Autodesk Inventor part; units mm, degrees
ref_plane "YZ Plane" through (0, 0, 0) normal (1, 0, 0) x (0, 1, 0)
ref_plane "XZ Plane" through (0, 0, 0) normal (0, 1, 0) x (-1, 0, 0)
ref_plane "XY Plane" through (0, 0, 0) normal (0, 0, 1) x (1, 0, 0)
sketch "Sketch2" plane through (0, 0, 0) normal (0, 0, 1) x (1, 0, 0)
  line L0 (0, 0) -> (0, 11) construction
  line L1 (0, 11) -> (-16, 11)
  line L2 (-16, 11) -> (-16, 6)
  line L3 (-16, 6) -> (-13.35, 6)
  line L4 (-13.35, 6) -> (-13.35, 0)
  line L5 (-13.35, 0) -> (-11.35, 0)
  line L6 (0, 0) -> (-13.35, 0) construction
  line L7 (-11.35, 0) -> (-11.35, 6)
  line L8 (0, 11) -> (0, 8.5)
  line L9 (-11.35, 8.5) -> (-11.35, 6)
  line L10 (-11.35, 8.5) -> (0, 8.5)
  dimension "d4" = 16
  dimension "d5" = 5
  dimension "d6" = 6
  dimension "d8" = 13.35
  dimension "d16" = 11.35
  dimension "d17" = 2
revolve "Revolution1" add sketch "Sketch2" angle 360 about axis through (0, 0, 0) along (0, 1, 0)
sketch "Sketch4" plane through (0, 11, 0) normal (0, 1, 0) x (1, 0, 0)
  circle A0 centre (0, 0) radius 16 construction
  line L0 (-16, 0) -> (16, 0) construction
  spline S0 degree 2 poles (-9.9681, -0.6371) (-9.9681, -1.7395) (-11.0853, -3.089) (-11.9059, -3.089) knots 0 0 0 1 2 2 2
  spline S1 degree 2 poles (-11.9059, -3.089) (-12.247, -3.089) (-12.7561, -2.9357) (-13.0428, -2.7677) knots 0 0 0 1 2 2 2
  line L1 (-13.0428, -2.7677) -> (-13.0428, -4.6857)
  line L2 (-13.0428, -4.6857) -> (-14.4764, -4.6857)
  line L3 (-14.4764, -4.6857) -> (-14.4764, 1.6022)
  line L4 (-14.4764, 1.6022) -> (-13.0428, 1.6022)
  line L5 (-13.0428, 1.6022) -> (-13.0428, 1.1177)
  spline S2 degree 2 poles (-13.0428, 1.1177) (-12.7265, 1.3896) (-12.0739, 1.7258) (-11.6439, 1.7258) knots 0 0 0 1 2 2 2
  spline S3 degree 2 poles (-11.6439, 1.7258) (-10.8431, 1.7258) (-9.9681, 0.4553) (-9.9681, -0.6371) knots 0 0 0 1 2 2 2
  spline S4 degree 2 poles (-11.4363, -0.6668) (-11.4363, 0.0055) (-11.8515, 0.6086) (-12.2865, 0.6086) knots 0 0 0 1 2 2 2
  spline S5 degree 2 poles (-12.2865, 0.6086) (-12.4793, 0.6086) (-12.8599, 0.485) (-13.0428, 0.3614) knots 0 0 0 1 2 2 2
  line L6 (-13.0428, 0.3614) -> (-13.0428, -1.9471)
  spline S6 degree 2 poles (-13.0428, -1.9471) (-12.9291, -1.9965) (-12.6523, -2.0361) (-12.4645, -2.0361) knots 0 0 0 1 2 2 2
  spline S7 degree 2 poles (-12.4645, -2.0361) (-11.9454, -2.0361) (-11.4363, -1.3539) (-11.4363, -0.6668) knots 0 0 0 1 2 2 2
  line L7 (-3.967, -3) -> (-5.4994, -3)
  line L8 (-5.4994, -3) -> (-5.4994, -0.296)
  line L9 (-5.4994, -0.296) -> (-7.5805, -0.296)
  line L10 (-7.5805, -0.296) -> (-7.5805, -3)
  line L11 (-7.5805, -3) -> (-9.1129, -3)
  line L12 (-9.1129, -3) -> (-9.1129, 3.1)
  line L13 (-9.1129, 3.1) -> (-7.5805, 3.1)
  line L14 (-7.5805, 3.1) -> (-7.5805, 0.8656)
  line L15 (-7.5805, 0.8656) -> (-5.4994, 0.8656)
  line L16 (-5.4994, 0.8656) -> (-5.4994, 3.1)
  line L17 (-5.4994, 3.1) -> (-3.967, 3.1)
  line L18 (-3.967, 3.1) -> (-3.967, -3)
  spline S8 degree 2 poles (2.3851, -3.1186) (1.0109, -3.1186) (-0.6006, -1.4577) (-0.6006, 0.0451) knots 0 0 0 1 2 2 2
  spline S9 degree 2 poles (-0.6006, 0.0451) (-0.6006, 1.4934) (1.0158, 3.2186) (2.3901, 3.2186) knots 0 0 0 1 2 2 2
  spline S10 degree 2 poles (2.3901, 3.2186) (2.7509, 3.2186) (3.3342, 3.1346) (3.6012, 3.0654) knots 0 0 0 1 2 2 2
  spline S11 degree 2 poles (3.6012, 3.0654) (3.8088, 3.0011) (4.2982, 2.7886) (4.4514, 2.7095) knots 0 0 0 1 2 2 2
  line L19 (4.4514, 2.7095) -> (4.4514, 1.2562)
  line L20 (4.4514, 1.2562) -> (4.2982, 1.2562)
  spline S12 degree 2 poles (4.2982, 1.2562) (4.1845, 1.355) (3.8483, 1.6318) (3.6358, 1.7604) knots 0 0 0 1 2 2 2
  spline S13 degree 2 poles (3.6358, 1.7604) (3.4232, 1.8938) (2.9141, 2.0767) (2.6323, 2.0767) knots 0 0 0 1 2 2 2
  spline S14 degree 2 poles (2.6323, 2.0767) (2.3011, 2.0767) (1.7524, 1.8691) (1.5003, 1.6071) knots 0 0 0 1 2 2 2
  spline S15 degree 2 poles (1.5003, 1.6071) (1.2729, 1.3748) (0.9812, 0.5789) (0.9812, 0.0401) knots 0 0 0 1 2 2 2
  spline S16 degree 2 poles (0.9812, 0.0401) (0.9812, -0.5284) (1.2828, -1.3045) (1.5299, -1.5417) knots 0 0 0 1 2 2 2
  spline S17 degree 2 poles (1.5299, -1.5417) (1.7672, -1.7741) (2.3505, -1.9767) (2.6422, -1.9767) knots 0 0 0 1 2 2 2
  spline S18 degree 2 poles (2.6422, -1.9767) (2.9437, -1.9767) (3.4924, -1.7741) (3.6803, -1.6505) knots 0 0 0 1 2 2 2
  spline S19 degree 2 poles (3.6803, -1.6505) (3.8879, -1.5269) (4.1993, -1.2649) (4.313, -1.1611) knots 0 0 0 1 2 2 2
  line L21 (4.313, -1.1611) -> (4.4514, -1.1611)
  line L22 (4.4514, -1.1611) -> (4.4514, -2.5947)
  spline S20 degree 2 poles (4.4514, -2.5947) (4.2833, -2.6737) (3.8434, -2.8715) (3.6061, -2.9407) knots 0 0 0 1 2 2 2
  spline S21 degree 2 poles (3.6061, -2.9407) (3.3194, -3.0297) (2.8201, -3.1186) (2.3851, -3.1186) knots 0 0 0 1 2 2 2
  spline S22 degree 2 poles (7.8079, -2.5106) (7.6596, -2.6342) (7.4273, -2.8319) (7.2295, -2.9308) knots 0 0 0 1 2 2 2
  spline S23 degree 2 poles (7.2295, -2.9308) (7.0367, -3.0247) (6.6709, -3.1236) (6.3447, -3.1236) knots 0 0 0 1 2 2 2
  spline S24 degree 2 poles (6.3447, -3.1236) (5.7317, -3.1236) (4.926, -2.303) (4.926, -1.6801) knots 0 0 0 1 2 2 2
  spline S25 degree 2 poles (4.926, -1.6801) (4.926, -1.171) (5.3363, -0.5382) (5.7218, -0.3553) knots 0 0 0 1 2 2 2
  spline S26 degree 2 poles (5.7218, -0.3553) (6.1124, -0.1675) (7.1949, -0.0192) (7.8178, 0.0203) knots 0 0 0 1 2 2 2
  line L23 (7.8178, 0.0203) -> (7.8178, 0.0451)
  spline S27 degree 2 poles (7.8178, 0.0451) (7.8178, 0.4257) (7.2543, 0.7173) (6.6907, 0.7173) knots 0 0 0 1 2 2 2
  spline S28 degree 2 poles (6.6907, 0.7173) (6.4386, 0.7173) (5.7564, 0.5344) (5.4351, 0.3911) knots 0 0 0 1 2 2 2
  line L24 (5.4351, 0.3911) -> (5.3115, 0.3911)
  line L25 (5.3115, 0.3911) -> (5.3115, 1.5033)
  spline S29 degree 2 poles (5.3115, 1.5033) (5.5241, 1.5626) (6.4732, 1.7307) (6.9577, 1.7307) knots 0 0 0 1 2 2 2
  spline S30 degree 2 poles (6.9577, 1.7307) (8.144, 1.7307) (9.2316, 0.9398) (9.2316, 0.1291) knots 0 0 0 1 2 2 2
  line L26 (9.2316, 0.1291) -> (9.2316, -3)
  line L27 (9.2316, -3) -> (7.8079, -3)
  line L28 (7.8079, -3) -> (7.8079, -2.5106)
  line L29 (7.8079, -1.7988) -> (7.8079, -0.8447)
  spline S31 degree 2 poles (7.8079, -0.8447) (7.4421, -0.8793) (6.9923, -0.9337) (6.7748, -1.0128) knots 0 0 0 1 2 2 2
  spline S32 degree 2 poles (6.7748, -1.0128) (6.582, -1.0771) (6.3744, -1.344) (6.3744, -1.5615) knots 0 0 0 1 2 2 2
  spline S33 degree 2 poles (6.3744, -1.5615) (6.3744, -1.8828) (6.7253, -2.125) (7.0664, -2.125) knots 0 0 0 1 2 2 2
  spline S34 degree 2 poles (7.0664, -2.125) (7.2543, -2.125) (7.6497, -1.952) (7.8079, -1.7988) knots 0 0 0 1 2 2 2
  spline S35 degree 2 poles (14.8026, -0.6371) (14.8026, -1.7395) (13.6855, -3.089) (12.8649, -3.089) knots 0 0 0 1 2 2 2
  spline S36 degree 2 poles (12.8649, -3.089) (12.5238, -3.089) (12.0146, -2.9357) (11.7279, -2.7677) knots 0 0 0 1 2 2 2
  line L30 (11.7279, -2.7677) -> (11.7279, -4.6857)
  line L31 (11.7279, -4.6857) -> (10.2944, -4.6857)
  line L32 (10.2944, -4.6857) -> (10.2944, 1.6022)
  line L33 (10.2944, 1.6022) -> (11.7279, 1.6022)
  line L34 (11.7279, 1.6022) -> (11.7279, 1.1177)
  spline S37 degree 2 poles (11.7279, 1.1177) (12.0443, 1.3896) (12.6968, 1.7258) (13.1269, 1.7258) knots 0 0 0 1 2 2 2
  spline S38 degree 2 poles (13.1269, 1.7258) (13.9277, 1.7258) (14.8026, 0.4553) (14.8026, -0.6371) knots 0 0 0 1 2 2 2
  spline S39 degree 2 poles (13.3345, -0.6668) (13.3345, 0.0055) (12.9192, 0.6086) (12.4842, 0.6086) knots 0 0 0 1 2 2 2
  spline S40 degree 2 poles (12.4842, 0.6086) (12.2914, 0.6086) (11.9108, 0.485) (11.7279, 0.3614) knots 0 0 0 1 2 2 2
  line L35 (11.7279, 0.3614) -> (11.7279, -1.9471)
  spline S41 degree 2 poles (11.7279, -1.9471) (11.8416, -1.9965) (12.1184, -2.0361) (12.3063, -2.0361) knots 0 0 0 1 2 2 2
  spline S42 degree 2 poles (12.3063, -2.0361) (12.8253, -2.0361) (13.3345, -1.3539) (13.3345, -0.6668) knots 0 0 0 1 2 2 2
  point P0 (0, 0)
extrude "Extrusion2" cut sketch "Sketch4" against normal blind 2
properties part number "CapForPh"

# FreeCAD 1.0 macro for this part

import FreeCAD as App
import Part
import Sketcher

V = App.Vector
Q = App.Units.Quantity


def add_polygon(sketch, points):
    """Adds a closed chain of lines whose ends are joined by coincident constraints."""
    first, n = sketch.GeometryCount, len(points)
    for a, b in zip(points, points[1:] + points[:1]):
        sketch.addGeometry(Part.LineSegment(App.Vector(*a, 0), App.Vector(*b, 0)), False)
    for i in range(n):
        sketch.addConstraint(Sketcher.Constraint("Coincident", first + i, 2, first + (i + 1) % n, 1))

doc = App.newDocument("Part")
params = doc.addObject("Spreadsheet::Sheet", "Params")
for row, (alias, value) in enumerate([
    ("sketch1_width", "16 mm"),
    ("sketch1_width2", "2 mm"),
    ("sketch1_height", "5 mm"),
    ("sketch1_height2", "6 mm"),
    ("sketch1_width3", "11.35 mm"),
    ("revolution_angle", "360 deg"),
    ("sketch2_height", "6.1 mm"),
    ("sketch2_height2", "6.1 mm"),
    ("pocket1_length", "2 mm"),
], start=1):
    params.set(f"A{row}", alias)
    params.set(f"B{row}", "=" + value)
    params.setAlias(f"B{row}", alias)

body = doc.addObject("PartDesign::Body", "Body")

# Sketch on XY plane
sketch1 = doc.addObject("Sketcher::SketchObject", "Sketch")
body.addObject(sketch1)
sketch1.AttachmentSupport = (doc.XY_Plane, [""])
sketch1.MapMode = "FlatFace"
add_polygon(sketch1, [(0, 8.5), (0, 11), (-16, 11), (-16, 6), (-13.3, 6), (-13.3, 0), (-11.3, 0), (-11.3, 8.5)])  # lines 0-7
sketch1.addConstraint([
    Sketcher.Constraint("Vertical", 0),
    Sketcher.Constraint("Horizontal", 1),
    Sketcher.Constraint("Vertical", 2),
    Sketcher.Constraint("Horizontal", 3),
    Sketcher.Constraint("Vertical", 4),
    Sketcher.Constraint("Horizontal", 5),
    Sketcher.Constraint("Vertical", 6),
    Sketcher.Constraint("Horizontal", 7),
    Sketcher.Constraint("PointOnObject", 0, 2, -2),
    Sketcher.Constraint("PointOnObject", 4, 2, -1),
    Sketcher.Constraint("DistanceX", 1, 2, 1, 1, Q("16 mm")),
    Sketcher.Constraint("DistanceX", 5, 1, 5, 2, Q("2 mm")),
    Sketcher.Constraint("DistanceY", 2, 2, 2, 1, Q("5 mm")),
    Sketcher.Constraint("DistanceY", 4, 2, 4, 1, Q("6 mm")),
    Sketcher.Constraint("DistanceX", 7, 1, 7, 2, Q("11.35 mm")),
    Sketcher.Constraint("DistanceY", 0, 1, 0, 2, Q("2.5 mm")),
])
sketch1.setExpression("Constraints[18]", "Params.sketch1_width")
sketch1.setExpression("Constraints[19]", "Params.sketch1_width2")
sketch1.setExpression("Constraints[20]", "Params.sketch1_height")
sketch1.setExpression("Constraints[21]", "Params.sketch1_height2")
sketch1.setExpression("Constraints[22]", "Params.sketch1_width3")
revolution = doc.addObject("PartDesign::Revolution", "Revolution")
body.addObject(revolution)
revolution.Profile = sketch1
revolution.ReferenceAxis = (sketch1, ["V_Axis"])
revolution.setExpression("Angle", "Params.revolution_angle")

# Sketch on XZ plane
sketch2 = doc.addObject("Sketcher::SketchObject", "Sketch001")
body.addObject(sketch2)
sketch2.AttachmentSupport = (doc.XZ_Plane, [""])
sketch2.MapMode = "FlatFace"
sketch2.AttachmentOffset = App.Placement(V(0, 0, -11), App.Rotation())
sketch2.addGeometry(Part.BSplineCurve([V(-9.9681, 0.6371, 0), V(-9.9681, 1.7395, 0), V(-11.0853, 3.089, 0), V(-11.9059, 3.089, 0)], [3, 1, 3], [0, 1, 2], False, 2, [1, 1, 1, 1], False), False)  # 0
sketch2.addGeometry(Part.BSplineCurve([V(-11.6439, -1.7258, 0), V(-10.8431, -1.7258, 0), V(-9.9681, -0.4553, 0), V(-9.9681, 0.6371, 0)], [3, 1, 3], [0, 1, 2], False, 2, [1, 1, 1, 1], False), False)  # 1
sketch2.addGeometry(Part.BSplineCurve([V(-13.0428, -1.1177, 0), V(-12.7265, -1.3896, 0), V(-12.0739, -1.7258, 0), V(-11.6439, -1.7258, 0)], [3, 1, 3], [0, 1, 2], False, 2, [1, 1, 1, 1], False), False)  # 2
sketch2.addGeometry(Part.LineSegment(V(-13.0428, -1.1177, 0), V(-13.0428, -1.6022, 0)), False)  # 3
sketch2.addGeometry(Part.LineSegment(V(-13.0428, -1.6022, 0), V(-14.4764, -1.6022, 0)), False)  # 4
sketch2.addGeometry(Part.LineSegment(V(-14.4764, -1.6022, 0), V(-14.4764, 4.6857, 0)), False)  # 5
sketch2.addGeometry(Part.LineSegment(V(-14.4764, 4.6857, 0), V(-13.0428, 4.6857, 0)), False)  # 6
sketch2.addGeometry(Part.LineSegment(V(-13.0428, 4.6857, 0), V(-13.0428, 2.7677, 0)), False)  # 7
sketch2.addGeometry(Part.BSplineCurve([V(-11.9059, 3.089, 0), V(-12.247, 3.089, 0), V(-12.7561, 2.9357, 0), V(-13.0428, 2.7677, 0)], [3, 1, 3], [0, 1, 2], False, 2, [1, 1, 1, 1], False), False)  # 8
sketch2.addGeometry(Part.BSplineCurve([V(-11.4363, 0.6668, 0), V(-11.4363, -0.0055, 0), V(-11.8515, -0.6086, 0), V(-12.2865, -0.6086, 0)], [3, 1, 3], [0, 1, 2], False, 2, [1, 1, 1, 1], False), False)  # 9
sketch2.addGeometry(Part.BSplineCurve([V(-12.4645, 2.0361, 0), V(-11.9454, 2.0361, 0), V(-11.4363, 1.3539, 0), V(-11.4363, 0.6668, 0)], [3, 1, 3], [0, 1, 2], False, 2, [1, 1, 1, 1], False), False)  # 10
sketch2.addGeometry(Part.BSplineCurve([V(-13.0428, 1.9471, 0), V(-12.9291, 1.9965, 0), V(-12.6523, 2.0361, 0), V(-12.4645, 2.0361, 0)], [3, 1, 3], [0, 1, 2], False, 2, [1, 1, 1, 1], False), False)  # 11
sketch2.addGeometry(Part.LineSegment(V(-13.0428, 1.9471, 0), V(-13.0428, -0.3614, 0)), False)  # 12
sketch2.addGeometry(Part.BSplineCurve([V(-12.2865, -0.6086, 0), V(-12.4793, -0.6086, 0), V(-12.8599, -0.485, 0), V(-13.0428, -0.3614, 0)], [3, 1, 3], [0, 1, 2], False, 2, [1, 1, 1, 1], False), False)  # 13
add_polygon(sketch2, [(-5.4994, 3), (-3.967, 3), (-3.967, -3.1), (-5.4994, -3.1), (-5.4994, -0.8656), (-7.5805, -0.8656), (-7.5805, -3.1), (-9.1129, -3.1), (-9.1129, 3), (-7.5805, 3), (-7.5805, 0.296), (-5.4994, 0.296)])  # lines 14-25
sketch2.addGeometry(Part.BSplineCurve([V(2.3851, 3.1186, 0), V(1.0109, 3.1186, 0), V(-0.6006, 1.4577, 0), V(-0.6006, -0.0451, 0)], [3, 1, 3], [0, 1, 2], False, 2, [1, 1, 1, 1], False), False)  # 26
sketch2.addGeometry(Part.BSplineCurve([V(3.6061, 2.9407, 0), V(3.3194, 3.0297, 0), V(2.8201, 3.1186, 0), V(2.3851, 3.1186, 0)], [3, 1, 3], [0, 1, 2], False, 2, [1, 1, 1, 1], False), False)  # 27
sketch2.addGeometry(Part.BSplineCurve([V(4.4514, 2.5947, 0), V(4.2833, 2.6737, 0), V(3.8434, 2.8715, 0), V(3.6061, 2.9407, 0)], [3, 1, 3], [0, 1, 2], False, 2, [1, 1, 1, 1], False), False)  # 28
sketch2.addGeometry(Part.LineSegment(V(4.4514, 2.5947, 0), V(4.4514, 1.1611, 0)), False)  # 29
sketch2.addGeometry(Part.LineSegment(V(4.4514, 1.1611, 0), V(4.313, 1.1611, 0)), False)  # 30
sketch2.addGeometry(Part.BSplineCurve([V(3.6803, 1.6505, 0), V(3.8879, 1.5269, 0), V(4.1993, 1.2649, 0), V(4.313, 1.1611, 0)], [3, 1, 3], [0, 1, 2], False, 2, [1, 1, 1, 1], False), False)  # 31
sketch2.addGeometry(Part.BSplineCurve([V(2.6422, 1.9767, 0), V(2.9437, 1.9767, 0), V(3.4924, 1.7741, 0), V(3.6803, 1.6505, 0)], [3, 1, 3], [0, 1, 2], False, 2, [1, 1, 1, 1], False), False)  # 32
sketch2.addGeometry(Part.BSplineCurve([V(1.5299, 1.5417, 0), V(1.7672, 1.7741, 0), V(2.3505, 1.9767, 0), V(2.6422, 1.9767, 0)], [3, 1, 3], [0, 1, 2], False, 2, [1, 1, 1, 1], False), False)  # 33
sketch2.addGeometry(Part.BSplineCurve([V(0.9812, -0.0401, 0), V(0.9812, 0.5284, 0), V(1.2828, 1.3045, 0), V(1.5299, 1.5417, 0)], [3, 1, 3], [0, 1, 2], False, 2, [1, 1, 1, 1], False), False)  # 34
sketch2.addGeometry(Part.BSplineCurve([V(1.5003, -1.6071, 0), V(1.2729, -1.3748, 0), V(0.9812, -0.5789, 0), V(0.9812, -0.0401, 0)], [3, 1, 3], [0, 1, 2], False, 2, [1, 1, 1, 1], False), False)  # 35
sketch2.addGeometry(Part.BSplineCurve([V(2.6323, -2.0767, 0), V(2.3011, -2.0767, 0), V(1.7524, -1.8691, 0), V(1.5003, -1.6071, 0)], [3, 1, 3], [0, 1, 2], False, 2, [1, 1, 1, 1], False), False)  # 36
sketch2.addGeometry(Part.BSplineCurve([V(3.6358, -1.7604, 0), V(3.4232, -1.8938, 0), V(2.9141, -2.0767, 0), V(2.6323, -2.0767, 0)], [3, 1, 3], [0, 1, 2], False, 2, [1, 1, 1, 1], False), False)  # 37
sketch2.addGeometry(Part.BSplineCurve([V(4.2982, -1.2562, 0), V(4.1845, -1.355, 0), V(3.8483, -1.6318, 0), V(3.6358, -1.7604, 0)], [3, 1, 3], [0, 1, 2], False, 2, [1, 1, 1, 1], False), False)  # 38
sketch2.addGeometry(Part.LineSegment(V(4.2982, -1.2562, 0), V(4.4514, -1.2562, 0)), False)  # 39
sketch2.addGeometry(Part.LineSegment(V(4.4514, -1.2562, 0), V(4.4514, -2.7095, 0)), False)  # 40
sketch2.addGeometry(Part.BSplineCurve([V(3.6012, -3.0654, 0), V(3.8088, -3.0011, 0), V(4.2982, -2.7886, 0), V(4.4514, -2.7095, 0)], [3, 1, 3], [0, 1, 2], False, 2, [1, 1, 1, 1], False), False)  # 41
sketch2.addGeometry(Part.BSplineCurve([V(2.3901, -3.2186, 0), V(2.7509, -3.2186, 0), V(3.3342, -3.1346, 0), V(3.6012, -3.0654, 0)], [3, 1, 3], [0, 1, 2], False, 2, [1, 1, 1, 1], False), False)  # 42
sketch2.addGeometry(Part.BSplineCurve([V(-0.6006, -0.0451, 0), V(-0.6006, -1.4934, 0), V(1.0158, -3.2186, 0), V(2.3901, -3.2186, 0)], [3, 1, 3], [0, 1, 2], False, 2, [1, 1, 1, 1], False), False)  # 43
sketch2.addGeometry(Part.BSplineCurve([V(7.8079, 2.5106, 0), V(7.6596, 2.6342, 0), V(7.4273, 2.8319, 0), V(7.2295, 2.9308, 0)], [3, 1, 3], [0, 1, 2], False, 2, [1, 1, 1, 1], False), False)  # 44
sketch2.addGeometry(Part.LineSegment(V(7.8079, 2.5106, 0), V(7.8079, 3, 0)), False)  # 45
sketch2.addGeometry(Part.LineSegment(V(7.8079, 3, 0), V(9.2316, 3, 0)), False)  # 46
sketch2.addGeometry(Part.LineSegment(V(9.2316, 3, 0), V(9.2316, -0.1291, 0)), False)  # 47
sketch2.addGeometry(Part.BSplineCurve([V(6.9577, -1.7307, 0), V(8.144, -1.7307, 0), V(9.2316, -0.9398, 0), V(9.2316, -0.1291, 0)], [3, 1, 3], [0, 1, 2], False, 2, [1, 1, 1, 1], False), False)  # 48
sketch2.addGeometry(Part.BSplineCurve([V(5.3115, -1.5033, 0), V(5.5241, -1.5626, 0), V(6.4732, -1.7307, 0), V(6.9577, -1.7307, 0)], [3, 1, 3], [0, 1, 2], False, 2, [1, 1, 1, 1], False), False)  # 49
sketch2.addGeometry(Part.LineSegment(V(5.3115, -1.5033, 0), V(5.3115, -0.3911, 0)), False)  # 50
sketch2.addGeometry(Part.LineSegment(V(5.3115, -0.3911, 0), V(5.4351, -0.3911, 0)), False)  # 51
sketch2.addGeometry(Part.BSplineCurve([V(6.6907, -0.7173, 0), V(6.4386, -0.7173, 0), V(5.7564, -0.5344, 0), V(5.4351, -0.3911, 0)], [3, 1, 3], [0, 1, 2], False, 2, [1, 1, 1, 1], False), False)  # 52
sketch2.addGeometry(Part.BSplineCurve([V(7.8178, -0.0451, 0), V(7.8178, -0.4257, 0), V(7.2543, -0.7173, 0), V(6.6907, -0.7173, 0)], [3, 1, 3], [0, 1, 2], False, 2, [1, 1, 1, 1], False), False)  # 53
sketch2.addGeometry(Part.LineSegment(V(7.8178, -0.0451, 0), V(7.8178, -0.0203, 0)), False)  # 54
sketch2.addGeometry(Part.BSplineCurve([V(5.7218, 0.3553, 0), V(6.1124, 0.1675, 0), V(7.1949, 0.0192, 0), V(7.8178, -0.0203, 0)], [3, 1, 3], [0, 1, 2], False, 2, [1, 1, 1, 1], False), False)  # 55
sketch2.addGeometry(Part.BSplineCurve([V(4.926, 1.6801, 0), V(4.926, 1.171, 0), V(5.3363, 0.5382, 0), V(5.7218, 0.3553, 0)], [3, 1, 3], [0, 1, 2], False, 2, [1, 1, 1, 1], False), False)  # 56
sketch2.addGeometry(Part.BSplineCurve([V(6.3447, 3.1236, 0), V(5.7317, 3.1236, 0), V(4.926, 2.303, 0), V(4.926, 1.6801, 0)], [3, 1, 3], [0, 1, 2], False, 2, [1, 1, 1, 1], False), False)  # 57
sketch2.addGeometry(Part.BSplineCurve([V(7.2295, 2.9308, 0), V(7.0367, 3.0247, 0), V(6.6709, 3.1236, 0), V(6.3447, 3.1236, 0)], [3, 1, 3], [0, 1, 2], False, 2, [1, 1, 1, 1], False), False)  # 58
sketch2.addGeometry(Part.LineSegment(V(7.8079, 0.8447, 0), V(7.8079, 1.7988, 0)), False)  # 59
sketch2.addGeometry(Part.BSplineCurve([V(7.0664, 2.125, 0), V(7.2543, 2.125, 0), V(7.6497, 1.952, 0), V(7.8079, 1.7988, 0)], [3, 1, 3], [0, 1, 2], False, 2, [1, 1, 1, 1], False), False)  # 60
sketch2.addGeometry(Part.BSplineCurve([V(6.3744, 1.5615, 0), V(6.3744, 1.8828, 0), V(6.7253, 2.125, 0), V(7.0664, 2.125, 0)], [3, 1, 3], [0, 1, 2], False, 2, [1, 1, 1, 1], False), False)  # 61
sketch2.addGeometry(Part.BSplineCurve([V(6.7748, 1.0128, 0), V(6.582, 1.0771, 0), V(6.3744, 1.344, 0), V(6.3744, 1.5615, 0)], [3, 1, 3], [0, 1, 2], False, 2, [1, 1, 1, 1], False), False)  # 62
sketch2.addGeometry(Part.BSplineCurve([V(7.8079, 0.8447, 0), V(7.4421, 0.8793, 0), V(6.9923, 0.9337, 0), V(6.7748, 1.0128, 0)], [3, 1, 3], [0, 1, 2], False, 2, [1, 1, 1, 1], False), False)  # 63
sketch2.addGeometry(Part.BSplineCurve([V(14.8026, 0.6371, 0), V(14.8026, 1.7395, 0), V(13.6855, 3.089, 0), V(12.8649, 3.089, 0)], [3, 1, 3], [0, 1, 2], False, 2, [1, 1, 1, 1], False), False)  # 64
sketch2.addGeometry(Part.BSplineCurve([V(13.1269, -1.7258, 0), V(13.9277, -1.7258, 0), V(14.8026, -0.4553, 0), V(14.8026, 0.6371, 0)], [3, 1, 3], [0, 1, 2], False, 2, [1, 1, 1, 1], False), False)  # 65
sketch2.addGeometry(Part.BSplineCurve([V(11.7279, -1.1177, 0), V(12.0443, -1.3896, 0), V(12.6968, -1.7258, 0), V(13.1269, -1.7258, 0)], [3, 1, 3], [0, 1, 2], False, 2, [1, 1, 1, 1], False), False)  # 66
sketch2.addGeometry(Part.LineSegment(V(11.7279, -1.1177, 0), V(11.7279, -1.6022, 0)), False)  # 67
sketch2.addGeometry(Part.LineSegment(V(11.7279, -1.6022, 0), V(10.2944, -1.6022, 0)), False)  # 68
sketch2.addGeometry(Part.LineSegment(V(10.2944, -1.6022, 0), V(10.2944, 4.6857, 0)), False)  # 69
sketch2.addGeometry(Part.LineSegment(V(10.2944, 4.6857, 0), V(11.7279, 4.6857, 0)), False)  # 70
sketch2.addGeometry(Part.LineSegment(V(11.7279, 4.6857, 0), V(11.7279, 2.7677, 0)), False)  # 71
sketch2.addGeometry(Part.BSplineCurve([V(12.8649, 3.089, 0), V(12.5238, 3.089, 0), V(12.0146, 2.9357, 0), V(11.7279, 2.7677, 0)], [3, 1, 3], [0, 1, 2], False, 2, [1, 1, 1, 1], False), False)  # 72
sketch2.addGeometry(Part.BSplineCurve([V(13.3345, 0.6668, 0), V(13.3345, -0.0055, 0), V(12.9192, -0.6086, 0), V(12.4842, -0.6086, 0)], [3, 1, 3], [0, 1, 2], False, 2, [1, 1, 1, 1], False), False)  # 73
sketch2.addGeometry(Part.BSplineCurve([V(12.3063, 2.0361, 0), V(12.8253, 2.0361, 0), V(13.3345, 1.3539, 0), V(13.3345, 0.6668, 0)], [3, 1, 3], [0, 1, 2], False, 2, [1, 1, 1, 1], False), False)  # 74
sketch2.addGeometry(Part.BSplineCurve([V(11.7279, 1.9471, 0), V(11.8416, 1.9965, 0), V(12.1184, 2.0361, 0), V(12.3063, 2.0361, 0)], [3, 1, 3], [0, 1, 2], False, 2, [1, 1, 1, 1], False), False)  # 75
sketch2.addGeometry(Part.LineSegment(V(11.7279, 1.9471, 0), V(11.7279, -0.3614, 0)), False)  # 76
sketch2.addGeometry(Part.BSplineCurve([V(12.4842, -0.6086, 0), V(12.2914, -0.6086, 0), V(11.9108, -0.485, 0), V(11.7279, -0.3614, 0)], [3, 1, 3], [0, 1, 2], False, 2, [1, 1, 1, 1], False), False)  # 77
sketch2.addConstraint([
    Sketcher.Constraint("Block", 0),
    Sketcher.Constraint("Block", 1),
    Sketcher.Constraint("Block", 2),
    Sketcher.Constraint("Block", 8),
    Sketcher.Constraint("Block", 9),
    Sketcher.Constraint("Block", 10),
    Sketcher.Constraint("Block", 11),
    Sketcher.Constraint("Block", 13),
    Sketcher.Constraint("Block", 26),
    Sketcher.Constraint("Block", 27),
    Sketcher.Constraint("Block", 28),
    Sketcher.Constraint("Block", 31),
    Sketcher.Constraint("Block", 32),
    Sketcher.Constraint("Block", 33),
    Sketcher.Constraint("Block", 34),
    Sketcher.Constraint("Block", 35),
    Sketcher.Constraint("Block", 36),
    Sketcher.Constraint("Block", 37),
    Sketcher.Constraint("Block", 38),
    Sketcher.Constraint("Block", 41),
    Sketcher.Constraint("Block", 42),
    Sketcher.Constraint("Block", 43),
    Sketcher.Constraint("Block", 44),
    Sketcher.Constraint("Block", 48),
    Sketcher.Constraint("Block", 49),
    Sketcher.Constraint("Block", 52),
    Sketcher.Constraint("Block", 53),
    Sketcher.Constraint("Block", 55),
    Sketcher.Constraint("Block", 56),
    Sketcher.Constraint("Block", 57),
    Sketcher.Constraint("Block", 58),
    Sketcher.Constraint("Block", 60),
    Sketcher.Constraint("Block", 61),
    Sketcher.Constraint("Block", 62),
    Sketcher.Constraint("Block", 63),
    Sketcher.Constraint("Block", 64),
    Sketcher.Constraint("Block", 65),
    Sketcher.Constraint("Block", 66),
    Sketcher.Constraint("Block", 72),
    Sketcher.Constraint("Block", 73),
    Sketcher.Constraint("Block", 74),
    Sketcher.Constraint("Block", 75),
    Sketcher.Constraint("Block", 77),
    Sketcher.Constraint("Coincident", 2, 1, 3, 1),
    Sketcher.Constraint("Coincident", 3, 2, 4, 1),
    Sketcher.Constraint("Coincident", 4, 2, 5, 1),
    Sketcher.Constraint("Coincident", 5, 2, 6, 1),
    Sketcher.Constraint("Coincident", 6, 2, 7, 1),
    Sketcher.Constraint("Coincident", 7, 2, 8, 2),
    Sketcher.Constraint("Coincident", 11, 1, 12, 1),
    Sketcher.Constraint("Coincident", 12, 2, 13, 2),
    Sketcher.Constraint("Coincident", 28, 1, 29, 1),
    Sketcher.Constraint("Coincident", 29, 2, 30, 1),
    Sketcher.Constraint("Coincident", 30, 2, 31, 2),
    Sketcher.Constraint("Coincident", 38, 1, 39, 1),
    Sketcher.Constraint("Coincident", 39, 2, 40, 1),
    Sketcher.Constraint("Coincident", 40, 2, 41, 2),
    Sketcher.Constraint("Coincident", 44, 1, 45, 1),
    Sketcher.Constraint("Coincident", 45, 2, 46, 1),
    Sketcher.Constraint("Coincident", 46, 2, 47, 1),
    Sketcher.Constraint("Coincident", 47, 2, 48, 2),
    Sketcher.Constraint("Coincident", 49, 1, 50, 1),
    Sketcher.Constraint("Coincident", 50, 2, 51, 1),
    Sketcher.Constraint("Coincident", 51, 2, 52, 2),
    Sketcher.Constraint("Coincident", 53, 1, 54, 1),
    Sketcher.Constraint("Coincident", 54, 2, 55, 2),
    Sketcher.Constraint("Coincident", 59, 2, 60, 2),
    Sketcher.Constraint("Coincident", 63, 1, 59, 1),
    Sketcher.Constraint("Coincident", 66, 1, 67, 1),
    Sketcher.Constraint("Coincident", 67, 2, 68, 1),
    Sketcher.Constraint("Coincident", 68, 2, 69, 1),
    Sketcher.Constraint("Coincident", 69, 2, 70, 1),
    Sketcher.Constraint("Coincident", 70, 2, 71, 1),
    Sketcher.Constraint("Coincident", 71, 2, 72, 2),
    Sketcher.Constraint("Coincident", 75, 1, 76, 1),
    Sketcher.Constraint("Coincident", 76, 2, 77, 2),
    Sketcher.Constraint("Vertical", 3),
    Sketcher.Constraint("Horizontal", 4),
    Sketcher.Constraint("Vertical", 5),
    Sketcher.Constraint("Horizontal", 6),
    Sketcher.Constraint("Vertical", 7),
    Sketcher.Constraint("Horizontal", 14),
    Sketcher.Constraint("Vertical", 15),
    Sketcher.Constraint("Horizontal", 16),
    Sketcher.Constraint("Vertical", 17),
    Sketcher.Constraint("Horizontal", 18),
    Sketcher.Constraint("Vertical", 19),
    Sketcher.Constraint("Horizontal", 20),
    Sketcher.Constraint("Vertical", 21),
    Sketcher.Constraint("Horizontal", 22),
    Sketcher.Constraint("Vertical", 23),
    Sketcher.Constraint("Horizontal", 24),
    Sketcher.Constraint("Vertical", 25),
    Sketcher.Constraint("Vertical", 29),
    Sketcher.Constraint("Horizontal", 30),
    Sketcher.Constraint("Horizontal", 39),
    Sketcher.Constraint("Vertical", 40),
    Sketcher.Constraint("Vertical", 45),
    Sketcher.Constraint("Horizontal", 46),
    Sketcher.Constraint("Vertical", 47),
    Sketcher.Constraint("Vertical", 50),
    Sketcher.Constraint("Horizontal", 51),
    Sketcher.Constraint("Vertical", 67),
    Sketcher.Constraint("Horizontal", 68),
    Sketcher.Constraint("Vertical", 69),
    Sketcher.Constraint("Horizontal", 70),
    Sketcher.Constraint("Vertical", 71),
    Sketcher.Constraint("DistanceY", 15, 2, 15, 1, Q("6.1 mm")),
    Sketcher.Constraint("DistanceY", 21, 1, 21, 2, Q("6.1 mm")),
    Sketcher.Constraint("DistanceY", -1, 1, 14, 2, Q("3 mm")),
    Sketcher.Constraint("DistanceY", -1, 1, 21, 2, Q("3 mm")),
    Sketcher.Constraint("DistanceY", -1, 1, 45, 2, Q("3 mm")),
    Sketcher.Constraint("DistanceX", 18, 2, 18, 1, Q("2.081 mm")),
    Sketcher.Constraint("DistanceX", 24, 1, 24, 2, Q("2.081 mm")),
    Sketcher.Constraint("DistanceY", 5, 1, 5, 2, Q("6.288 mm")),
    Sketcher.Constraint("DistanceY", 7, 2, 7, 1, Q("1.918 mm")),
    Sketcher.Constraint("DistanceY", 23, 2, 23, 1, Q("2.704 mm")),
    Sketcher.Constraint("DistanceY", 69, 1, 69, 2, Q("6.288 mm")),
    Sketcher.Constraint("DistanceY", 71, 2, 71, 1, Q("1.918 mm")),
    Sketcher.Constraint("DistanceX", 3, 2, 20, 2, Q("3.93 mm")),
    Sketcher.Constraint("DistanceX", 14, 2, 30, 2, Q("8.28 mm")),
    Sketcher.Constraint("DistanceX", 4, 2, 4, 1, Q("1.4336 mm")),
    Sketcher.Constraint("DistanceX", 14, 1, 14, 2, Q("1.5324 mm")),
    Sketcher.Constraint("DistanceX", 16, 2, 16, 1, Q("1.5324 mm")),
    Sketcher.Constraint("DistanceX", 68, 2, 68, 1, Q("1.4335 mm")),
    Sketcher.Constraint("DistanceY", 17, 1, 17, 2, Q("2.2344 mm")),
])
sketch2.setExpression("Constraints[119]", "Params.sketch2_height")
sketch2.setExpression("Constraints[120]", "Params.sketch2_height2")
pocket1 = doc.addObject("PartDesign::Pocket", "Pocket")
body.addObject(pocket1)
pocket1.Profile = sketch2
pocket1.setExpression("Length", "Params.pocket1_length")
pocket1.Reversed = True

doc.recompute()
